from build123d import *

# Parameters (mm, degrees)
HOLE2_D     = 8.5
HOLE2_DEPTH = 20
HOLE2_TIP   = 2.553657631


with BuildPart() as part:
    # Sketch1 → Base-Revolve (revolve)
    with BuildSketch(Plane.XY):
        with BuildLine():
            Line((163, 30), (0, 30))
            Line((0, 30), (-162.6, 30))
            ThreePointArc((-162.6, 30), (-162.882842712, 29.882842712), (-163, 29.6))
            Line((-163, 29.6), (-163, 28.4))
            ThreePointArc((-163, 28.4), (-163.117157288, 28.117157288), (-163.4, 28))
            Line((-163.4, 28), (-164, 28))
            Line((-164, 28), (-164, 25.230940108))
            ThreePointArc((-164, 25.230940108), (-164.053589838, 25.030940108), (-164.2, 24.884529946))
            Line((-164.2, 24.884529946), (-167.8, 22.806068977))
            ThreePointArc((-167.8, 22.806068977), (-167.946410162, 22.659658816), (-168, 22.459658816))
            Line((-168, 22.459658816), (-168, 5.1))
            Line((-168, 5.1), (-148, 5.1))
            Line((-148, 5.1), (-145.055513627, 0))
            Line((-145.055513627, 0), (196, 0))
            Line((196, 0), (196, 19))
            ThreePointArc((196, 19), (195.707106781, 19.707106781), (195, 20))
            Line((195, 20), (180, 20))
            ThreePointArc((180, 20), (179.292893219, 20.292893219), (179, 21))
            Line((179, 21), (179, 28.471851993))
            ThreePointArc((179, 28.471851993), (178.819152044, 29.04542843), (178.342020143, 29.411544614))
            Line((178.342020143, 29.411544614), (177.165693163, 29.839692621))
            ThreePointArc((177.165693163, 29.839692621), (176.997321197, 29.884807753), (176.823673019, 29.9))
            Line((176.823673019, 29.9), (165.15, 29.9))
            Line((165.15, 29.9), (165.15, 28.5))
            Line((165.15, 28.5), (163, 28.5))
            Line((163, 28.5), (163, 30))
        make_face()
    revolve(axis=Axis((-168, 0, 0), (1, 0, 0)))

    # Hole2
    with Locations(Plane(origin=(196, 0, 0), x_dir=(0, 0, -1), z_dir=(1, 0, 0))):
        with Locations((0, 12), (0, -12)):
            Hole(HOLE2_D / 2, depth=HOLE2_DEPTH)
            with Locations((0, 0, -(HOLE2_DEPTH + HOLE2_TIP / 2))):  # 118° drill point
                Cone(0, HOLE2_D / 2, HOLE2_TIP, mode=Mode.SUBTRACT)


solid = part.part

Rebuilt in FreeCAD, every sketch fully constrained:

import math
import FreeCAD as App
import Part
import Sketcher

V = App.Vector
Q = App.Units.Quantity

doc = App.newDocument("Part")
params = doc.addObject("Spreadsheet::Sheet", "Params")
for row, (alias, value) in enumerate([
    ("sketch1_radius", "1 mm"),
    ("sketch1_radius2", "0.4 mm"),
    ("sketch1_width", "20 mm"),
    ("sketch1_width2", "15 mm"),
    ("sketch1_height", "19 mm"),
    ("revolution_angle", "360 deg"),
    ("sketch2_diameter", "8.5 mm"),
    ("hole_diameter", "8.5 mm"),
    ("hole_depth", "20 mm"),
], start=1):
    params.set(f"A{row}", alias)
    params.set(f"B{row}", "=" + value)
    params.setAlias(f"B{row}", alias)

body = doc.addObject("PartDesign::Body", "Body")

sketch1 = body.newObject("Sketcher::SketchObject", "Sketch")
sketch1.AttachmentSupport = (doc.getObject("XY_Plane"), [""])
sketch1.MapMode = "FlatFace"
sketch1.addGeometry([
    Part.LineSegment(V(163, 30, 0), V(-162.6, 30, 0)),
    Part.ArcOfCircle(Part.Circle(V(-162.6, 29.6, 0), V(0, 0, 1), 0.4), math.radians(90), math.radians(180)),
    Part.LineSegment(V(-163, 29.6, 0), V(-163, 28.4, 0)),
    Part.ArcOfCircle(Part.Circle(V(-163.4, 28.4, 0), V(0, 0, 1), 0.4), math.radians(-90), math.radians(0)),
    Part.LineSegment(V(-163.4, 28, 0), V(-164, 28, 0)),
    Part.LineSegment(V(-164, 28, 0), V(-164, 25.23094, 0)),
    Part.ArcOfCircle(Part.Circle(V(-164.4, 25.23094, 0), V(0, 0, 1), 0.4), math.radians(-60), math.radians(0)),
    Part.LineSegment(V(-164.2, 24.88453, 0), V(-167.8, 22.806069, 0)),
    Part.ArcOfCircle(Part.Circle(V(-167.6, 22.459659, 0), V(0, 0, 1), 0.4), math.radians(120), math.radians(180)),
    Part.LineSegment(V(-168, 22.459659, 0), V(-168, 5.1, 0)),
    Part.LineSegment(V(-168, 5.1, 0), V(-148, 5.1, 0)),
    Part.LineSegment(V(-148, 5.1, 0), V(-145.055514, 0, 0)),
    Part.LineSegment(V(-145.055514, 0, 0), V(196, 0, 0)),
    Part.LineSegment(V(196, 0, 0), V(196, 19, 0)),
    Part.ArcOfCircle(Part.Circle(V(195, 19, 0), V(0, 0, 1), 1), math.radians(0), math.radians(90)),
    Part.LineSegment(V(195, 20, 0), V(180, 20, 0)),
    Part.ArcOfCircle(Part.Circle(V(180, 21, 0), V(0, 0, 1), 1), math.radians(-180), math.radians(-90)),
    Part.LineSegment(V(179, 21, 0), V(179, 28.471852, 0)),
    Part.ArcOfCircle(Part.Circle(V(178, 28.471852, 0), V(0, 0, 1), 1), math.radians(0), math.radians(70)),
    Part.LineSegment(V(178.34202, 29.411545, 0), V(177.165693, 29.839693, 0)),
    Part.ArcOfCircle(Part.Circle(V(176.823673, 28.9, 0), V(0, 0, 1), 1), math.radians(70), math.radians(90)),
    Part.LineSegment(V(176.823673, 29.9, 0), V(165.15, 29.9, 0)),
    Part.LineSegment(V(165.15, 29.9, 0), V(165.15, 28.5, 0)),
    Part.LineSegment(V(165.15, 28.5, 0), V(163, 28.5, 0)),
    Part.LineSegment(V(163, 28.5, 0), V(163, 30, 0)),
], False)
sketch1.addConstraint([
    Sketcher.Constraint("Tangent", 0, 2, 1, 1),
    Sketcher.Constraint("Tangent", 1, 2, 2, 1),
    Sketcher.Constraint("Tangent", 2, 2, 3, 2),
    Sketcher.Constraint("Tangent", 3, 1, 4, 1),
    Sketcher.Constraint("Coincident", 4, 2, 5, 1),
    Sketcher.Constraint("Tangent", 5, 2, 6, 2),
    Sketcher.Constraint("Tangent", 6, 1, 7, 1),
    Sketcher.Constraint("Tangent", 7, 2, 8, 1),
    Sketcher.Constraint("Tangent", 8, 2, 9, 1),
    Sketcher.Constraint("Coincident", 9, 2, 10, 1),
    Sketcher.Constraint("Coincident", 10, 2, 11, 1),
    Sketcher.Constraint("Coincident", 11, 2, 12, 1),
    Sketcher.Constraint("Coincident", 12, 2, 13, 1),
    Sketcher.Constraint("Tangent", 13, 2, 14, 1),
    Sketcher.Constraint("Tangent", 14, 2, 15, 1),
    Sketcher.Constraint("Tangent", 15, 2, 16, 2),
    Sketcher.Constraint("Tangent", 16, 1, 17, 1),
    Sketcher.Constraint("Tangent", 17, 2, 18, 1),
    Sketcher.Constraint("Tangent", 18, 2, 19, 1),
    Sketcher.Constraint("Tangent", 19, 2, 20, 1),
    Sketcher.Constraint("Tangent", 20, 2, 21, 1),
    Sketcher.Constraint("Coincident", 21, 2, 22, 1),
    Sketcher.Constraint("Coincident", 22, 2, 23, 1),
    Sketcher.Constraint("Coincident", 23, 2, 24, 1),
    Sketcher.Constraint("Coincident", 24, 2, 0, 1),
    Sketcher.Constraint("Horizontal", 0),
    Sketcher.Constraint("Vertical", 2),
    Sketcher.Constraint("Horizontal", 4),
    Sketcher.Constraint("Vertical", 5),
    Sketcher.Constraint("Vertical", 9),
    Sketcher.Constraint("Horizontal", 10),
    Sketcher.Constraint("Horizontal", 12),
    Sketcher.Constraint("Vertical", 13),
    Sketcher.Constraint("Horizontal", 15),
    Sketcher.Constraint("Vertical", 17),
    Sketcher.Constraint("Horizontal", 21),
    Sketcher.Constraint("Vertical", 22),
    Sketcher.Constraint("Horizontal", 23),
    Sketcher.Constraint("Vertical", 24),
    Sketcher.Constraint("Equal", 1, 3),
    Sketcher.Constraint("Equal", 3, 6),
    Sketcher.Constraint("Equal", 6, 8),
    Sketcher.Constraint("Equal", 14, 16),
    Sketcher.Constraint("Equal", 16, 18),
    Sketcher.Constraint("Equal", 18, 20),
    Sketcher.Constraint("PointOnObject", 11, 2, -1),
    Sketcher.Constraint("Perpendicular", 7, 11),
    Sketcher.Constraint("Radius", 14, 1.0),
    Sketcher.Constraint("Radius", 1, 0.4),
    Sketcher.Constraint("DistanceX", 10, 1, 10, 2, 20.0),
    Sketcher.Constraint("DistanceX", 15, 2, 15, 1, 15.0),
    Sketcher.Constraint("DistanceY", 13, 1, 13, 2, 19.0),
    Sketcher.Constraint("Angle", 7, Q("-150 deg")),
    Sketcher.Constraint("Angle", 19, Q("160 deg")),
    Sketcher.Constraint("DistanceX", 0, 2, 0, 1, 325.6),
    Sketcher.Constraint("DistanceX", 4, 2, 4, 1, 0.6),
    Sketcher.Constraint("DistanceY", 2, 2, 2, 1, 1.2),
    Sketcher.Constraint("DistanceY", 22, 2, 22, 1, 1.4),
    Sketcher.Constraint("DistanceY", 24, 1, 24, 2, 1.5),
    Sketcher.Constraint("DistanceX", -1, 1, 14, 3, 195.0),
    Sketcher.Constraint("DistanceY", -1, 1, 0, 2, 30.0),
    Sketcher.Constraint("DistanceX", 1, 2, -1, 1, 163.0),
    Sketcher.Constraint("DistanceX", 8, 2, -1, 1, 168.0),
    Sketcher.Constraint("DistanceX", 23, 2, 23, 1, 2.15),
    Sketcher.Constraint("DistanceY", -1, 1, 9, 2, 5.1),
    Sketcher.Constraint("DistanceY", 5, 2, 5, 1, 2.76906),
    Sketcher.Constraint("DistanceY", 17, 1, 17, 2, 7.471852),
])
sketch1.setExpression("Constraints[47]", "Params.sketch1_radius")
sketch1.setExpression("Constraints[48]", "Params.sketch1_radius2")
sketch1.setExpression("Constraints[49]", "Params.sketch1_width")
sketch1.setExpression("Constraints[50]", "Params.sketch1_width2")
sketch1.setExpression("Constraints[51]", "Params.sketch1_height")
revolution = body.newObject("PartDesign::Revolution", "Revolution")
revolution.Profile = sketch1
revolution.ReferenceAxis = (sketch1, ["H_Axis"])
revolution.setExpression("Angle", "Params.revolution_angle")

sketch2 = body.newObject("Sketcher::SketchObject", "Sketch001")
sketch2.AttachmentSupport = (doc.getObject("YZ_Plane"), [""])
sketch2.MapMode = "FlatFace"
sketch2.AttachmentOffset = App.Placement(V(0, 0, 196), App.Rotation())
sketch2.addGeometry([
    Part.Circle(V(12, 0, 0), V(0, 0, 1), 4.25),
    Part.Circle(V(-12, 0, 0), V(0, 0, 1), 4.25),
], False)
sketch2.addConstraint([
    Sketcher.Constraint("Equal", 0, 1),
    Sketcher.Constraint("Symmetric", 0, 3, 1, 3, -1, 1),
    Sketcher.Constraint("PointOnObject", 0, 3, -1),
    Sketcher.Constraint("Diameter", 0, 8.5),
    Sketcher.Constraint("DistanceX", -1, 1, 0, 3, 12.0),
])
sketch2.setExpression("Constraints[3]", "Params.sketch2_diameter")
doc.recompute()
hole = body.newObject("PartDesign::Hole", "Hole")
hole.Profile = sketch2
hole.ThreadType = "None"
hole.setExpression("Diameter", "Params.hole_diameter")
hole.DepthType = "Dimension"
hole.setExpression("Depth", "Params.hole_depth")
hole.DrillPoint = "Angled"
hole.DrillPointAngle = 118

doc.recompute()
